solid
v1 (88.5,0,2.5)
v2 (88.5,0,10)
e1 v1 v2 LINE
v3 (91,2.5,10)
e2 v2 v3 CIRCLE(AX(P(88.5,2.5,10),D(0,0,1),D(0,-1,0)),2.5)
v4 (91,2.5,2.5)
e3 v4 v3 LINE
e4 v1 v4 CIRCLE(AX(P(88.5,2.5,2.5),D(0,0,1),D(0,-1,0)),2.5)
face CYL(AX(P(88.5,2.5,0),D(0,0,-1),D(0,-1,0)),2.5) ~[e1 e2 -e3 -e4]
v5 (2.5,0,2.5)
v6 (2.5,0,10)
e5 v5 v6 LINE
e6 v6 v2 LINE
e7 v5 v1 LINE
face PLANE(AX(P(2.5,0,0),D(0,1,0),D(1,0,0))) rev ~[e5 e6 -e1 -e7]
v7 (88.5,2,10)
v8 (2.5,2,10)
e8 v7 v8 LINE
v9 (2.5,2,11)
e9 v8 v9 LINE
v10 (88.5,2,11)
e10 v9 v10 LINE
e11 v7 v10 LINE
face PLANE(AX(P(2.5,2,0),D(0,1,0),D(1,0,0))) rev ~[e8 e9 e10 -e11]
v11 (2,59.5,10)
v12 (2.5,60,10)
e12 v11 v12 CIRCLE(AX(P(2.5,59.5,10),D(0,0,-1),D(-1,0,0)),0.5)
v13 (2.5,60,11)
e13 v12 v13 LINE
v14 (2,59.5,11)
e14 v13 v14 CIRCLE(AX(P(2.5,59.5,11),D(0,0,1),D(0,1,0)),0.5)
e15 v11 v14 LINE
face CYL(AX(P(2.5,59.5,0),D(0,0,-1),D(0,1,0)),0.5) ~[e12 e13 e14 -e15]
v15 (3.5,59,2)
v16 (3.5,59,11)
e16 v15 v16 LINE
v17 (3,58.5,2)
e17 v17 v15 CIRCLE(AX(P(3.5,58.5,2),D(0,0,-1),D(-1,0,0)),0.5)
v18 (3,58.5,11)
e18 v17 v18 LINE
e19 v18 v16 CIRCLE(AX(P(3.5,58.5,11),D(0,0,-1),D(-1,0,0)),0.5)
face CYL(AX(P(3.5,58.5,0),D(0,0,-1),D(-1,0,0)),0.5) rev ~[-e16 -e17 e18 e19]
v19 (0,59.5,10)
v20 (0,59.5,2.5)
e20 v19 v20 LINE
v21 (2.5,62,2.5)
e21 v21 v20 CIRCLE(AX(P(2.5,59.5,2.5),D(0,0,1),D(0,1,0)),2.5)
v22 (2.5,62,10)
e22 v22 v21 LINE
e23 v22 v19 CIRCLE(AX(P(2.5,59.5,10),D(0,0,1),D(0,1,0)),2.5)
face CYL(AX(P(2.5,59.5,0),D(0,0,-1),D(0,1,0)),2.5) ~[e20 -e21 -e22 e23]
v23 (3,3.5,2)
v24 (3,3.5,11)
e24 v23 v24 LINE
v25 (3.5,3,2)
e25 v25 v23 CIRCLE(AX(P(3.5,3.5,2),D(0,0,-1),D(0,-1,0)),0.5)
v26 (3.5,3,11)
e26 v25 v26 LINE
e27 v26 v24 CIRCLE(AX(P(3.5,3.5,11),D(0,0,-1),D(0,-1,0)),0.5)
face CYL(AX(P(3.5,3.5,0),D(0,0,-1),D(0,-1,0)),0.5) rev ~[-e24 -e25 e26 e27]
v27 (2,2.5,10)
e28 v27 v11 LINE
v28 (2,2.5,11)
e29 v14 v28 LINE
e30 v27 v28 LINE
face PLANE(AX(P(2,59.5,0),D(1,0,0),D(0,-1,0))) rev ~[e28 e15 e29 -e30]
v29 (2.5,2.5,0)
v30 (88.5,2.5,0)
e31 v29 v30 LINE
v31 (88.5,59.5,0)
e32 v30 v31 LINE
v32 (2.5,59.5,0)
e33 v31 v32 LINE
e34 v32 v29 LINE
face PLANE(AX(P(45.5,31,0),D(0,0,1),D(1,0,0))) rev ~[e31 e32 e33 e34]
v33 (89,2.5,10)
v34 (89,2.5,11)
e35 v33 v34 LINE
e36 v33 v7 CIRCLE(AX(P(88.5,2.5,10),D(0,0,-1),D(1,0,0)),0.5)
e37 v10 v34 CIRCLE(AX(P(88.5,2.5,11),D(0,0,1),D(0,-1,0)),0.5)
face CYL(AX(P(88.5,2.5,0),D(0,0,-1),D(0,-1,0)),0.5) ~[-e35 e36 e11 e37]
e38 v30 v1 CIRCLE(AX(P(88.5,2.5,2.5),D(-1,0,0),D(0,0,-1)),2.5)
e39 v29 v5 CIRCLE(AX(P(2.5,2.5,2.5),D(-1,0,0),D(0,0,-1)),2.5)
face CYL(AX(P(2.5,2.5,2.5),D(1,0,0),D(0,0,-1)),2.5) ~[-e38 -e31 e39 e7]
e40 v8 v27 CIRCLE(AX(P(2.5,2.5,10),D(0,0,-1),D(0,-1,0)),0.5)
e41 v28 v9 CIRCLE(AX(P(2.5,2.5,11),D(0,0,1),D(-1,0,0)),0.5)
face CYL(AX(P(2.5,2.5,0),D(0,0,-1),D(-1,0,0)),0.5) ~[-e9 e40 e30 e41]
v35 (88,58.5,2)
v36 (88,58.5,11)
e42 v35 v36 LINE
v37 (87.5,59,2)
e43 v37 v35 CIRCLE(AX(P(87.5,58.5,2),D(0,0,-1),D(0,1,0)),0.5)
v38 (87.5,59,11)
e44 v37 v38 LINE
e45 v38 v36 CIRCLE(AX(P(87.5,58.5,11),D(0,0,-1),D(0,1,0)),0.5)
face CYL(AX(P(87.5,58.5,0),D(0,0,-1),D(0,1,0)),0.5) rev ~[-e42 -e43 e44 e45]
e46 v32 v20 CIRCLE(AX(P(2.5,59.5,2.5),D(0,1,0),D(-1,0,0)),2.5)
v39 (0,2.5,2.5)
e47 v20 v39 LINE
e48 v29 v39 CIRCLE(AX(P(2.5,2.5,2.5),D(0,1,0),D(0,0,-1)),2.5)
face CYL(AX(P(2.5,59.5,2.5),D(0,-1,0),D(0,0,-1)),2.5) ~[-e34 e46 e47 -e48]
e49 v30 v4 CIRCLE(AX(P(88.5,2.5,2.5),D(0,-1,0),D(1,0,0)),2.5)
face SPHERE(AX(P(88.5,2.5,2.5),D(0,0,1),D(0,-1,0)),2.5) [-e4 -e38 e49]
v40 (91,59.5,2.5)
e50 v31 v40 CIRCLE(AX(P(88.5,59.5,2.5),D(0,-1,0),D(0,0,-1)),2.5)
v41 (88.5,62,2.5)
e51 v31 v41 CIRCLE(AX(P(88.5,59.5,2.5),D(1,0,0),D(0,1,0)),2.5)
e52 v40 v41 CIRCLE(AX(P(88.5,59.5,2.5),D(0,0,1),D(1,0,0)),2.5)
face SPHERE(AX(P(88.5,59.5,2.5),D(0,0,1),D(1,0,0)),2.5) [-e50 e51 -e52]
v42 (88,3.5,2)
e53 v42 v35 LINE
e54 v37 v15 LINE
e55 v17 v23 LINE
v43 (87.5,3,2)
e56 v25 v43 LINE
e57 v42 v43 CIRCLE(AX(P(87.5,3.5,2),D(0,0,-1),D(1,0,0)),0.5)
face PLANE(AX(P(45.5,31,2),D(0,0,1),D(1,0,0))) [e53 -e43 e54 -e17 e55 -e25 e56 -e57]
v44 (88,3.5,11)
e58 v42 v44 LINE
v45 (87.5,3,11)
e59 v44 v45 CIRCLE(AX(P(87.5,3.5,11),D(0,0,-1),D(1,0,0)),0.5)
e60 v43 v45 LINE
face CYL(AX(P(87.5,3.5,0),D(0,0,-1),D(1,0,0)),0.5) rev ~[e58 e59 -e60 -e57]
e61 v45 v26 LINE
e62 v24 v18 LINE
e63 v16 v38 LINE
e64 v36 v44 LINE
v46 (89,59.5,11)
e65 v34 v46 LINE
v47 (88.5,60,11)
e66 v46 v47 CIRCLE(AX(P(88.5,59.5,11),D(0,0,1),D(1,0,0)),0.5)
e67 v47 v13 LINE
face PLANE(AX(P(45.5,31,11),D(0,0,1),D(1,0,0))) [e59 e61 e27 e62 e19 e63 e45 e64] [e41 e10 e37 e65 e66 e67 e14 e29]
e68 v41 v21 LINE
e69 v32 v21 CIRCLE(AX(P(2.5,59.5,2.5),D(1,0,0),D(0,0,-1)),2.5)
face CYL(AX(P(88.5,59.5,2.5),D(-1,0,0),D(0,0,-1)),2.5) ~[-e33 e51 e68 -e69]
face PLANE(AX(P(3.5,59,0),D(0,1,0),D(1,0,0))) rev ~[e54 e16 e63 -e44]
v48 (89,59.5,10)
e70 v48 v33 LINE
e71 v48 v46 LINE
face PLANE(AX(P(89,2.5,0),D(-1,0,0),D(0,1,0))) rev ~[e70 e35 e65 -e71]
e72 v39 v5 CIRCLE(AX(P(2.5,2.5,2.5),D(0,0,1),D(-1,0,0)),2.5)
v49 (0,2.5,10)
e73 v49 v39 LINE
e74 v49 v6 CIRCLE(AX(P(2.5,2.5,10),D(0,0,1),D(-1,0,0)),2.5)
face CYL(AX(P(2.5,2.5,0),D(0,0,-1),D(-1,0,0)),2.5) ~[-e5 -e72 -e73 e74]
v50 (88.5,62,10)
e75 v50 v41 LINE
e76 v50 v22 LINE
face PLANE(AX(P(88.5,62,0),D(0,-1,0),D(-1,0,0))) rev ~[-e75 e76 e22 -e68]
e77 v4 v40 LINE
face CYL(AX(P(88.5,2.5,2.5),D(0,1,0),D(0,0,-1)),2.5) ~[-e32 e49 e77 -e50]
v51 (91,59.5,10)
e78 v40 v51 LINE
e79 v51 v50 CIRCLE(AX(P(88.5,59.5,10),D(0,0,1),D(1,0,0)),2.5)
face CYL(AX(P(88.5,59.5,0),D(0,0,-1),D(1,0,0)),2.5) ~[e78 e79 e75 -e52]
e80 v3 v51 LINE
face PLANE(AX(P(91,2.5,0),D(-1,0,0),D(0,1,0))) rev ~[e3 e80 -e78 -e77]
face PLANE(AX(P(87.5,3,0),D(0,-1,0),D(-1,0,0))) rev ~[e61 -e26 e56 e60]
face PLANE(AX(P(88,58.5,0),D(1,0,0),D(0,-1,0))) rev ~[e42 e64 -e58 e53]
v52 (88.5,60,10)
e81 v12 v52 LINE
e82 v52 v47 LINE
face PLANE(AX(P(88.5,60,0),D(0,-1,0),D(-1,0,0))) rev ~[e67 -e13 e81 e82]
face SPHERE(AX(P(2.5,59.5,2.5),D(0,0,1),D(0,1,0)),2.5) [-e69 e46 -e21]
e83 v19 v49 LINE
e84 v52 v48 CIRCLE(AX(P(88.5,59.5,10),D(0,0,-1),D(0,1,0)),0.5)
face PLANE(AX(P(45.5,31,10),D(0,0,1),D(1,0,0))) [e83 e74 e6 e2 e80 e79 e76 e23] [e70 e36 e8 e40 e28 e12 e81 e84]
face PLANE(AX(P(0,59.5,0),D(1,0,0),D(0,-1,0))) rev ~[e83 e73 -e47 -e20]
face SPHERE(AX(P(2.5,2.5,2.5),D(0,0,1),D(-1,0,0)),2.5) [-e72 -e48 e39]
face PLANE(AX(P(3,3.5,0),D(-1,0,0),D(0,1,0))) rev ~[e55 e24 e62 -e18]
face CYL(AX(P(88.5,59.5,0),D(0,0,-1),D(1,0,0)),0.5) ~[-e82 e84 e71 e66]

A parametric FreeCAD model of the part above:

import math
import FreeCAD as App
import Part
import Sketcher
from FreeCAD import Vector


def edges_at(feature, points):
    """Names of the edges that pass closest to the given points."""
    edges = feature.Shape.Edges
    near = lambda p: min(range(len(edges)), key=lambda i: edges[i].distToShape(Part.Vertex(*p))[0])
    return sorted({f"Edge{near(p) + 1}" for p in points})

doc = App.newDocument("Part")
body = doc.addObject("PartDesign::Body", "Body")

# Sketch on XY plane
sketch1 = doc.addObject("Sketcher::SketchObject", "Sketch")
body.addObject(sketch1)
sketch1.AttachmentSupport = (doc.XY_Plane, [""])
sketch1.MapMode = "FlatFace"
sketch1.addGeometry(Part.ArcOfCircle(Part.Circle(Vector(2.5, 2.5, 0), Vector(0, 0, 1), 2.5), math.radians(180), math.radians(270)), False)
sketch1.addGeometry(Part.LineSegment(Vector(2.5, 0, 0), Vector(88.5, 0, 0)), False)
sketch1.addGeometry(Part.ArcOfCircle(Part.Circle(Vector(88.5, 2.5, 0), Vector(0, 0, 1), 2.5), math.radians(-90), math.radians(0)), False)
sketch1.addGeometry(Part.LineSegment(Vector(91, 2.5, 0), Vector(91, 59.5, 0)), False)
sketch1.addGeometry(Part.ArcOfCircle(Part.Circle(Vector(88.5, 59.5, 0), Vector(0, 0, 1), 2.5), math.radians(0), math.radians(90)), False)
sketch1.addGeometry(Part.LineSegment(Vector(88.5, 62, 0), Vector(2.5, 62, 0)), False)
sketch1.addGeometry(Part.ArcOfCircle(Part.Circle(Vector(2.5, 59.5, 0), Vector(0, 0, 1), 2.5), math.radians(90), math.radians(180)), False)
sketch1.addGeometry(Part.LineSegment(Vector(0, 59.5, 0), Vector(0, 2.5, 0)), False)
sketch1.addConstraint(Sketcher.Constraint("Tangent", 0, 2, 1, 1))
sketch1.addConstraint(Sketcher.Constraint("Tangent", 1, 2, 2, 1))
sketch1.addConstraint(Sketcher.Constraint("Tangent", 2, 2, 3, 1))
sketch1.addConstraint(Sketcher.Constraint("Tangent", 3, 2, 4, 1))
sketch1.addConstraint(Sketcher.Constraint("Tangent", 4, 2, 5, 1))
sketch1.addConstraint(Sketcher.Constraint("Tangent", 5, 2, 6, 1))
sketch1.addConstraint(Sketcher.Constraint("Tangent", 6, 2, 7, 1))
sketch1.addConstraint(Sketcher.Constraint("Tangent", 7, 2, 0, 1))
sketch1.addConstraint(Sketcher.Constraint("Horizontal", 1))
sketch1.addConstraint(Sketcher.Constraint("Vertical", 3))
sketch1.addConstraint(Sketcher.Constraint("Horizontal", 5))
sketch1.addConstraint(Sketcher.Constraint("Vertical", 7))
sketch1.addConstraint(Sketcher.Constraint("Equal", 0, 2))
sketch1.addConstraint(Sketcher.Constraint("Equal", 2, 4))
sketch1.addConstraint(Sketcher.Constraint("Equal", 4, 6))
sketch1.addConstraint(Sketcher.Constraint("PointOnObject", 0, 2, -1))
sketch1.addConstraint(Sketcher.Constraint("PointOnObject", 6, 2, -2))
sketch1.addConstraint(Sketcher.Constraint("Radius", 0, 2.5))
sketch1.addConstraint(Sketcher.Constraint("DistanceX", 1, 1, 1, 2, 86.0))
sketch1.addConstraint(Sketcher.Constraint("DistanceY", 3, 1, 3, 2, 57.0))
pad1 = doc.addObject("PartDesign::Pad", "Pad")
body.addObject(pad1)
pad1.Profile = sketch1
pad1.Length = 2

# Sketch on XY plane
sketch2 = doc.addObject("Sketcher::SketchObject", "Sketch001")
body.addObject(sketch2)
sketch2.AttachmentSupport = (doc.XY_Plane, [""])
sketch2.MapMode = "FlatFace"
sketch2.addGeometry(Part.ArcOfCircle(Part.Circle(Vector(2.5, 2.5, 0), Vector(0, 0, 1), 2.5), math.radians(180), math.radians(270)), False)
sketch2.addGeometry(Part.LineSegment(Vector(2.5, 0, 0), Vector(88.5, 0, 0)), False)
sketch2.addGeometry(Part.ArcOfCircle(Part.Circle(Vector(88.5, 2.5, 0), Vector(0, 0, 1), 2.5), math.radians(-90), math.radians(0)), False)
sketch2.addGeometry(Part.LineSegment(Vector(91, 2.5, 0), Vector(91, 59.5, 0)), False)
sketch2.addGeometry(Part.ArcOfCircle(Part.Circle(Vector(88.5, 59.5, 0), Vector(0, 0, 1), 2.5), math.radians(0), math.radians(90)), False)
sketch2.addGeometry(Part.LineSegment(Vector(88.5, 62, 0), Vector(2.5, 62, 0)), False)
sketch2.addGeometry(Part.ArcOfCircle(Part.Circle(Vector(2.5, 59.5, 0), Vector(0, 0, 1), 2.5), math.radians(90), math.radians(180)), False)
sketch2.addGeometry(Part.LineSegment(Vector(0, 59.5, 0), Vector(0, 2.5, 0)), False)
sketch2.addGeometry(Part.ArcOfCircle(Part.Circle(Vector(2.5, 2.5, 0), Vector(0, 0, 1), 0.5), math.radians(180), math.radians(270)), False)
sketch2.addGeometry(Part.LineSegment(Vector(2, 2.5, 0), Vector(2, 59.5, 0)), False)
sketch2.addGeometry(Part.ArcOfCircle(Part.Circle(Vector(2.5, 59.5, 0), Vector(0, 0, 1), 0.5), math.radians(90), math.radians(180)), False)
sketch2.addGeometry(Part.LineSegment(Vector(2.5, 60, 0), Vector(88.5, 60, 0)), False)
sketch2.addGeometry(Part.ArcOfCircle(Part.Circle(Vector(88.5, 59.5, 0), Vector(0, 0, 1), 0.5), math.radians(0), math.radians(90)), False)
sketch2.addGeometry(Part.LineSegment(Vector(89, 59.5, 0), Vector(89, 2.5, 0)), False)
sketch2.addGeometry(Part.ArcOfCircle(Part.Circle(Vector(88.5, 2.5, 0), Vector(0, 0, 1), 0.5), math.radians(-90), math.radians(0)), False)
sketch2.addGeometry(Part.LineSegment(Vector(88.5, 2, 0), Vector(2.5, 2, 0)), False)
sketch2.addConstraint(Sketcher.Constraint("Tangent", 0, 2, 1, 1))
sketch2.addConstraint(Sketcher.Constraint("Tangent", 1, 2, 2, 1))
sketch2.addConstraint(Sketcher.Constraint("Tangent", 2, 2, 3, 1))
sketch2.addConstraint(Sketcher.Constraint("Tangent", 3, 2, 4, 1))
sketch2.addConstraint(Sketcher.Constraint("Tangent", 4, 2, 5, 1))
sketch2.addConstraint(Sketcher.Constraint("Tangent", 5, 2, 6, 1))
sketch2.addConstraint(Sketcher.Constraint("Tangent", 6, 2, 7, 1))
sketch2.addConstraint(Sketcher.Constraint("Tangent", 7, 2, 0, 1))
sketch2.addConstraint(Sketcher.Constraint("Tangent", 8, 1, 9, 1))
sketch2.addConstraint(Sketcher.Constraint("Tangent", 9, 2, 10, 2))
sketch2.addConstraint(Sketcher.Constraint("Tangent", 10, 1, 11, 1))
sketch2.addConstraint(Sketcher.Constraint("Tangent", 11, 2, 12, 2))
sketch2.addConstraint(Sketcher.Constraint("Tangent", 12, 1, 13, 1))
sketch2.addConstraint(Sketcher.Constraint("Tangent", 13, 2, 14, 2))
sketch2.addConstraint(Sketcher.Constraint("Tangent", 14, 1, 15, 1))
sketch2.addConstraint(Sketcher.Constraint("Tangent", 15, 2, 8, 2))
sketch2.addConstraint(Sketcher.Constraint("Horizontal", 1))
sketch2.addConstraint(Sketcher.Constraint("Vertical", 3))
sketch2.addConstraint(Sketcher.Constraint("Horizontal", 5))
sketch2.addConstraint(Sketcher.Constraint("Vertical", 7))
sketch2.addConstraint(Sketcher.Constraint("Vertical", 9))
sketch2.addConstraint(Sketcher.Constraint("Horizontal", 11))
sketch2.addConstraint(Sketcher.Constraint("Vertical", 13))
sketch2.addConstraint(Sketcher.Constraint("Horizontal", 15))
sketch2.addConstraint(Sketcher.Constraint("Coincident", 8, 3, 0, 3))
sketch2.addConstraint(Sketcher.Constraint("Coincident", 10, 3, 6, 3))
sketch2.addConstraint(Sketcher.Constraint("Coincident", 12, 3, 4, 3))
sketch2.addConstraint(Sketcher.Constraint("Equal", 0, 2))
sketch2.addConstraint(Sketcher.Constraint("Equal", 2, 4))
sketch2.addConstraint(Sketcher.Constraint("Equal", 4, 6))
sketch2.addConstraint(Sketcher.Constraint("Equal", 12, 14))
sketch2.addConstraint(Sketcher.Constraint("PointOnObject", 0, 2, -1))
sketch2.addConstraint(Sketcher.Constraint("PointOnObject", 6, 2, -2))
sketch2.addConstraint(Sketcher.Constraint("Radius", 0, 2.5))
sketch2.addConstraint(Sketcher.Constraint("Radius", 8, 0.5))
sketch2.addConstraint(Sketcher.Constraint("DistanceX", 1, 1, 1, 2, 86.0))
sketch2.addConstraint(Sketcher.Constraint("DistanceY", 3, 1, 3, 2, 57.0))
pad2 = doc.addObject("PartDesign::Pad", "Pad001")
body.addObject(pad2)
pad2.Profile = sketch2
pad2.Length = 10

# Sketch on XY plane
sketch3 = doc.addObject("Sketcher::SketchObject", "Sketch002")
body.addObject(sketch3)
sketch3.AttachmentSupport = (doc.XY_Plane, [""])
sketch3.MapMode = "FlatFace"
sketch3.addGeometry(Part.ArcOfCircle(Part.Circle(Vector(2.5, 59.5, 0), Vector(0, 0, 1), 0.5), math.radians(90), math.radians(180)), False)
sketch3.addGeometry(Part.LineSegment(Vector(2, 59.5, 0), Vector(2, 2.5, 0)), False)
sketch3.addGeometry(Part.ArcOfCircle(Part.Circle(Vector(2.5, 2.5, 0), Vector(0, 0, 1), 0.5), math.radians(180), math.radians(270)), False)
sketch3.addGeometry(Part.LineSegment(Vector(2.5, 2, 0), Vector(88.5, 2, 0)), False)
sketch3.addGeometry(Part.ArcOfCircle(Part.Circle(Vector(88.5, 2.5, 0), Vector(0, 0, 1), 0.5), math.radians(-90), math.radians(0)), False)
sketch3.addGeometry(Part.LineSegment(Vector(89, 2.5, 0), Vector(89, 59.5, 0)), False)
sketch3.addGeometry(Part.ArcOfCircle(Part.Circle(Vector(88.5, 59.5, 0), Vector(0, 0, 1), 0.5), math.radians(0), math.radians(90)), False)
sketch3.addGeometry(Part.LineSegment(Vector(88.5, 60, 0), Vector(2.5, 60, 0)), False)
sketch3.addGeometry(Part.ArcOfCircle(Part.Circle(Vector(3.5, 58.5, 0), Vector(0, 0, 1), 0.5), math.radians(90), math.radians(180)), False)
sketch3.addGeometry(Part.LineSegment(Vector(3.5, 59, 0), Vector(87.5, 59, 0)), False)
sketch3.addGeometry(Part.ArcOfCircle(Part.Circle(Vector(87.5, 58.5, 0), Vector(0, 0, 1), 0.5), math.radians(0), math.radians(90)), False)
sketch3.addGeometry(Part.LineSegment(Vector(88, 58.5, 0), Vector(88, 3.5, 0)), False)
sketch3.addGeometry(Part.ArcOfCircle(Part.Circle(Vector(87.5, 3.5, 0), Vector(0, 0, 1), 0.5), math.radians(-90), math.radians(0)), False)
sketch3.addGeometry(Part.LineSegment(Vector(87.5, 3, 0), Vector(3.5, 3, 0)), False)
sketch3.addGeometry(Part.ArcOfCircle(Part.Circle(Vector(3.5, 3.5, 0), Vector(0, 0, 1), 0.5), math.radians(180), math.radians(270)), False)
sketch3.addGeometry(Part.LineSegment(Vector(3, 3.5, 0), Vector(3, 58.5, 0)), False)
sketch3.addConstraint(Sketcher.Constraint("Tangent", 0, 2, 1, 1))
sketch3.addConstraint(Sketcher.Constraint("Tangent", 1, 2, 2, 1))
sketch3.addConstraint(Sketcher.Constraint("Tangent", 2, 2, 3, 1))
sketch3.addConstraint(Sketcher.Constraint("Tangent", 3, 2, 4, 1))
sketch3.addConstraint(Sketcher.Constraint("Tangent", 4, 2, 5, 1))
sketch3.addConstraint(Sketcher.Constraint("Tangent", 5, 2, 6, 1))
sketch3.addConstraint(Sketcher.Constraint("Tangent", 6, 2, 7, 1))
sketch3.addConstraint(Sketcher.Constraint("Tangent", 7, 2, 0, 1))
sketch3.addConstraint(Sketcher.Constraint("Tangent", 8, 1, 9, 1))
sketch3.addConstraint(Sketcher.Constraint("Tangent", 9, 2, 10, 2))
sketch3.addConstraint(Sketcher.Constraint("Tangent", 10, 1, 11, 1))
sketch3.addConstraint(Sketcher.Constraint("Tangent", 11, 2, 12, 2))
sketch3.addConstraint(Sketcher.Constraint("Tangent", 12, 1, 13, 1))
sketch3.addConstraint(Sketcher.Constraint("Tangent", 13, 2, 14, 2))
sketch3.addConstraint(Sketcher.Constraint("Tangent", 14, 1, 15, 1))
sketch3.addConstraint(Sketcher.Constraint("Tangent", 15, 2, 8, 2))
sketch3.addConstraint(Sketcher.Constraint("Vertical", 1))
sketch3.addConstraint(Sketcher.Constraint("Horizontal", 3))
sketch3.addConstraint(Sketcher.Constraint("Vertical", 5))
sketch3.addConstraint(Sketcher.Constraint("Horizontal", 7))
sketch3.addConstraint(Sketcher.Constraint("Horizontal", 9))
sketch3.addConstraint(Sketcher.Constraint("Vertical", 11))
sketch3.addConstraint(Sketcher.Constraint("Horizontal", 13))
sketch3.addConstraint(Sketcher.Constraint("Vertical", 15))
sketch3.addConstraint(Sketcher.Constraint("Equal", 0, 2))
sketch3.addConstraint(Sketcher.Constraint("Equal", 2, 4))
sketch3.addConstraint(Sketcher.Constraint("Equal", 4, 6))
sketch3.addConstraint(Sketcher.Constraint("Equal", 6, 8))
sketch3.addConstraint(Sketcher.Constraint("Equal", 8, 10))
sketch3.addConstraint(Sketcher.Constraint("Equal", 10, 12))
sketch3.addConstraint(Sketcher.Constraint("Equal", 12, 14))
sketch3.addConstraint(Sketcher.Constraint("Radius", 0, 0.5))
sketch3.addConstraint(Sketcher.Constraint("DistanceX", 3, 1, 3, 2, 86.0))
sketch3.addConstraint(Sketcher.Constraint("DistanceX", 9, 1, 9, 2, 84.0))
sketch3.addConstraint(Sketcher.Constraint("DistanceY", 1, 2, 1, 1, 57.0))
sketch3.addConstraint(Sketcher.Constraint("DistanceY", 11, 2, 11, 1, 55.0))
sketch3.addConstraint(Sketcher.Constraint("DistanceX", -1, 1, 0, 2, 2.0))
sketch3.addConstraint(Sketcher.Constraint("DistanceY", -1, 1, 2, 2, 2.0))
sketch3.addConstraint(Sketcher.Constraint("DistanceY", -1, 1, 8, 1, 59.0))
sketch3.addConstraint(Sketcher.Constraint("DistanceX", -1, 1, 10, 1, 88.0))
pad3 = doc.addObject("PartDesign::Pad", "Pad002")
body.addObject(pad3)
pad3.Profile = sketch3
pad3.Length = 11
doc.recompute()

fillet = doc.addObject("PartDesign::Fillet", "Fillet")
body.addObject(fillet)
fillet.Base = (pad3, edges_at(pad3, [(45.5, 0, 0)]))
fillet.Radius = 2.5

doc.recompute()
